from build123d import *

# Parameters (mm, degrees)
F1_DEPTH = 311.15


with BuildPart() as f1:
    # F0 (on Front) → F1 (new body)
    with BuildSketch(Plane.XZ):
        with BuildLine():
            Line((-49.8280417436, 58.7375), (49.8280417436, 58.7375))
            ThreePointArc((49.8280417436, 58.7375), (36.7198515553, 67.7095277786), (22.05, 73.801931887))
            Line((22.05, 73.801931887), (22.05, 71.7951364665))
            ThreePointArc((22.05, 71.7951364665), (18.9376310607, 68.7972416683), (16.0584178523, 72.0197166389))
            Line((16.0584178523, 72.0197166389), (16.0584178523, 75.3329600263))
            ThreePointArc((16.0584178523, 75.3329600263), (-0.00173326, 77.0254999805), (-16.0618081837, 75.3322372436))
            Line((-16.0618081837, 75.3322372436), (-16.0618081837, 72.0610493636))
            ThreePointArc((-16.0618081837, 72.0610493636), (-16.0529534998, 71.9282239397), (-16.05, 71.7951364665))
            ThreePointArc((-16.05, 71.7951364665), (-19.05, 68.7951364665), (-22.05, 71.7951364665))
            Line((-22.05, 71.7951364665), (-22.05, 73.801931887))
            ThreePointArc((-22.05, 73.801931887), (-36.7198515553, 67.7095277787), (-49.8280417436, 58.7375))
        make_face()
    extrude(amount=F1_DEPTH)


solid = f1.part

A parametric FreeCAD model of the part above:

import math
import FreeCAD as App
import Part
import Sketcher
Q = App.Units.Quantity

doc = App.newDocument("Part")
body = doc.addObject("PartDesign::Body", "Body")

sketch1 = doc.addObject("Sketcher::SketchObject", "Sketch")
body.addObject(sketch1)
sketch1.AttachmentSupport = (doc.XZ_Plane, [""])
sketch1.MapMode = "FlatFace"
sketch1.addGeometry([
    Part.LineSegment(App.Vector(-49.828042, 58.7375, 0), App.Vector(49.828042, 58.7375, 0)),
    Part.ArcOfCircle(Part.Circle(App.Vector(0, 0, 0), App.Vector(0, 0, 1), 77.0255), math.radians(49.691479), math.radians(73.365292)),
    Part.LineSegment(App.Vector(22.05, 73.801932, 0), App.Vector(22.05, 71.795136, 0)),
    Part.ArcOfCircle(Part.Circle(App.Vector(19.05, 71.795136, 0), App.Vector(0, 0, 1), 3), math.radians(175.706818), math.radians(360)),
    Part.LineSegment(App.Vector(16.058418, 72.019717, 0), App.Vector(16.058418, 75.33296, 0)),
    Part.ArcOfCircle(Part.Circle(App.Vector(0, 0, 0), App.Vector(0, 0, 1), 77.0255), math.radians(77.966601), math.radians(102.035978)),
    Part.LineSegment(App.Vector(-16.061808, 75.332237, 0), App.Vector(-16.061808, 72.061049, 0)),
    Part.ArcOfCircle(Part.Circle(App.Vector(-19.05, 71.795136, 0), App.Vector(0, 0, 1), 3), math.radians(0), math.radians(5.085236)),
    Part.ArcOfCircle(Part.Circle(App.Vector(-19.05, 71.795136, 0), App.Vector(0, 0, 1), 3), math.radians(180), math.radians(360)),
    Part.LineSegment(App.Vector(-22.05, 71.795136, 0), App.Vector(-22.05, 73.801932, 0)),
    Part.ArcOfCircle(Part.Circle(App.Vector(0, 0, 0), App.Vector(0, 0, 1), 77.0255), math.radians(106.634708), math.radians(130.308521)),
], False)
sketch1.addConstraint([
    Sketcher.Constraint("Coincident", 0, 2, 1, 1),
    Sketcher.Constraint("Coincident", 1, 2, 2, 1),
    Sketcher.Constraint("Coincident", 2, 2, 3, 2),
    Sketcher.Constraint("Coincident", 3, 1, 4, 1),
    Sketcher.Constraint("Coincident", 4, 2, 5, 1),
    Sketcher.Constraint("Coincident", 5, 2, 6, 1),
    Sketcher.Constraint("Coincident", 6, 2, 7, 2),
    Sketcher.Constraint("Coincident", 7, 1, 8, 2),
    Sketcher.Constraint("Coincident", 8, 1, 9, 1),
    Sketcher.Constraint("Coincident", 9, 2, 10, 1),
    Sketcher.Constraint("Coincident", 10, 2, 0, 1),
    Sketcher.Constraint("Horizontal", 0),
    Sketcher.Constraint("Vertical", 2),
    Sketcher.Constraint("Vertical", 4),
    Sketcher.Constraint("Vertical", 6),
    Sketcher.Constraint("Vertical", 9),
    Sketcher.Constraint("Coincident", 1, 3, -1, 1),
    Sketcher.Constraint("Coincident", 5, 3, -1, 1),
    Sketcher.Constraint("Coincident", 10, 3, -1, 1),
    Sketcher.Constraint("Coincident", 8, 3, 7, 3),
    Sketcher.Constraint("Radius", 1, Q("3.0325 in")),
    Sketcher.Constraint("Radius", 5, Q("3.0325 in")),
    Sketcher.Constraint("Radius", 10, Q("3.0325 in")),
    Sketcher.Constraint("DistanceX", 7, 3, 3, 3, Q("1.5 in")),
    Sketcher.Constraint("DistanceX", -1, 1, 3, 3, Q("0.75 in")),
    Sketcher.Constraint("Radius", 3, Q("3 mm")),
    Sketcher.Constraint("Radius", 7, Q("3 mm")),
    Sketcher.Constraint("DistanceY", -1, 1, 0, 2, Q("2.3125 in")),
    Sketcher.Constraint("DistanceY", 8, 3, 5, 2, Q("3.537101 mm")),
    Sketcher.Constraint("DistanceY", 3, 3, 5, 2, Q("3.537101 mm")),
    Sketcher.Constraint("DistanceY", 7, 1, 5, 2, Q("3.537101 mm")),
    Sketcher.Constraint("DistanceY", 8, 1, 5, 2, Q("3.537101 mm")),
    Sketcher.Constraint("DistanceY", 2, 2, 2, 1, Q("2.006795 mm")),
    Sketcher.Constraint("DistanceY", 4, 1, 4, 2, Q("3.313243 mm")),
    Sketcher.Constraint("DistanceY", 6, 2, 6, 1, Q("3.271188 mm")),
])
pad1 = doc.addObject("PartDesign::Pad", "Pad")
body.addObject(pad1)
pad1.Profile = sketch1
pad1.Length = Q("12.25 in")

doc.recompute()
